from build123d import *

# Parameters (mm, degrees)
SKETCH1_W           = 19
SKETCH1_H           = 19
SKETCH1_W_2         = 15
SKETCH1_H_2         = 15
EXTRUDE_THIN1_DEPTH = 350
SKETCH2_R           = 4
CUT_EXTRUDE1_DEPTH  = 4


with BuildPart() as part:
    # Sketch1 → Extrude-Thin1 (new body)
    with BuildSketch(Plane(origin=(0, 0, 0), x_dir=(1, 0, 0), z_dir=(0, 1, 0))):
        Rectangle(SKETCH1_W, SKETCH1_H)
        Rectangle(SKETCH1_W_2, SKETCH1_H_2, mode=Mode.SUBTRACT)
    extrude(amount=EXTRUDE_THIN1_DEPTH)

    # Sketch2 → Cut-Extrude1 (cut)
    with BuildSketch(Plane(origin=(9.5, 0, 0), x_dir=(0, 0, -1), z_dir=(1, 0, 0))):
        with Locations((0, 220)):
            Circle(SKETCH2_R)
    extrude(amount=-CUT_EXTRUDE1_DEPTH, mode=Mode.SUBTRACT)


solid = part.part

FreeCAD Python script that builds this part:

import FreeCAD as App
import Part
import Sketcher

V = App.Vector


def add_polygon(sketch, points):
    """Adds a closed chain of lines whose ends are joined by coincident constraints."""
    first, n = sketch.GeometryCount, len(points)
    for a, b in zip(points, points[1:] + points[:1]):
        sketch.addGeometry(Part.LineSegment(App.Vector(*a, 0), App.Vector(*b, 0)), False)
    for i in range(n):
        sketch.addConstraint(Sketcher.Constraint("Coincident", first + i, 2, first + (i + 1) % n, 1))

doc = App.newDocument("Part")
body = doc.addObject("PartDesign::Body", "Body")

sketch1 = body.newObject("Sketcher::SketchObject", "Sketch")
sketch1.AttachmentSupport = (doc.getObject("XZ_Plane"), [""])
sketch1.MapMode = "FlatFace"
add_polygon(sketch1, [(-9.5, -9.5), (-9.5, 9.5), (9.5, 9.5), (9.5, -9.5)])
add_polygon(sketch1, [(7.5, 7.5), (-7.5, 7.5), (-7.5, -7.5), (7.5, -7.5)])
sketch1.addConstraint(Sketcher.Constraint("Vertical", 0))
sketch1.addConstraint(Sketcher.Constraint("Horizontal", 1))
sketch1.addConstraint(Sketcher.Constraint("Vertical", 2))
sketch1.addConstraint(Sketcher.Constraint("Horizontal", 3))
sketch1.addConstraint(Sketcher.Constraint("Horizontal", 4))
sketch1.addConstraint(Sketcher.Constraint("Vertical", 5))
sketch1.addConstraint(Sketcher.Constraint("Horizontal", 6))
sketch1.addConstraint(Sketcher.Constraint("Vertical", 7))
sketch1.addConstraint(Sketcher.Constraint("Symmetric", 0, 2, 2, 2, -1, 1))
sketch1.addConstraint(Sketcher.Constraint("Symmetric", 4, 2, 6, 2, -1, 1))
sketch1.addConstraint(Sketcher.Constraint("Equal", 3, 0))
sketch1.addConstraint(Sketcher.Constraint("Equal", 6, 5))
sketch1.addConstraint(Sketcher.Constraint("DistanceX", 1, 1, 1, 2, 19.0))
sketch1.addConstraint(Sketcher.Constraint("DistanceX", 4, 2, 4, 1, 15.0))
pad1 = body.newObject("PartDesign::Pad", "Pad")
pad1.Profile = sketch1
pad1.Length = 350
pad1.Reversed = True

sketch2 = body.newObject("Sketcher::SketchObject", "Sketch001")
sketch2.AttachmentSupport = (doc.getObject("YZ_Plane"), [""])
sketch2.MapMode = "FlatFace"
sketch2.AttachmentOffset = App.Placement(V(0, 0, 9.5), App.Rotation())
sketch2.addGeometry(Part.Circle(V(220, 0, 0), V(0, 0, 1), 4), False)
sketch2.addConstraint(Sketcher.Constraint("PointOnObject", 0, 3, -1))
sketch2.addConstraint(Sketcher.Constraint("Diameter", 0, 8.0))
sketch2.addConstraint(Sketcher.Constraint("DistanceX", -1, 1, 0, 3, 220.0))
pocket1 = body.newObject("PartDesign::Pocket", "Pocket")
pocket1.Profile = sketch2
pocket1.Length = 4

doc.recompute()
